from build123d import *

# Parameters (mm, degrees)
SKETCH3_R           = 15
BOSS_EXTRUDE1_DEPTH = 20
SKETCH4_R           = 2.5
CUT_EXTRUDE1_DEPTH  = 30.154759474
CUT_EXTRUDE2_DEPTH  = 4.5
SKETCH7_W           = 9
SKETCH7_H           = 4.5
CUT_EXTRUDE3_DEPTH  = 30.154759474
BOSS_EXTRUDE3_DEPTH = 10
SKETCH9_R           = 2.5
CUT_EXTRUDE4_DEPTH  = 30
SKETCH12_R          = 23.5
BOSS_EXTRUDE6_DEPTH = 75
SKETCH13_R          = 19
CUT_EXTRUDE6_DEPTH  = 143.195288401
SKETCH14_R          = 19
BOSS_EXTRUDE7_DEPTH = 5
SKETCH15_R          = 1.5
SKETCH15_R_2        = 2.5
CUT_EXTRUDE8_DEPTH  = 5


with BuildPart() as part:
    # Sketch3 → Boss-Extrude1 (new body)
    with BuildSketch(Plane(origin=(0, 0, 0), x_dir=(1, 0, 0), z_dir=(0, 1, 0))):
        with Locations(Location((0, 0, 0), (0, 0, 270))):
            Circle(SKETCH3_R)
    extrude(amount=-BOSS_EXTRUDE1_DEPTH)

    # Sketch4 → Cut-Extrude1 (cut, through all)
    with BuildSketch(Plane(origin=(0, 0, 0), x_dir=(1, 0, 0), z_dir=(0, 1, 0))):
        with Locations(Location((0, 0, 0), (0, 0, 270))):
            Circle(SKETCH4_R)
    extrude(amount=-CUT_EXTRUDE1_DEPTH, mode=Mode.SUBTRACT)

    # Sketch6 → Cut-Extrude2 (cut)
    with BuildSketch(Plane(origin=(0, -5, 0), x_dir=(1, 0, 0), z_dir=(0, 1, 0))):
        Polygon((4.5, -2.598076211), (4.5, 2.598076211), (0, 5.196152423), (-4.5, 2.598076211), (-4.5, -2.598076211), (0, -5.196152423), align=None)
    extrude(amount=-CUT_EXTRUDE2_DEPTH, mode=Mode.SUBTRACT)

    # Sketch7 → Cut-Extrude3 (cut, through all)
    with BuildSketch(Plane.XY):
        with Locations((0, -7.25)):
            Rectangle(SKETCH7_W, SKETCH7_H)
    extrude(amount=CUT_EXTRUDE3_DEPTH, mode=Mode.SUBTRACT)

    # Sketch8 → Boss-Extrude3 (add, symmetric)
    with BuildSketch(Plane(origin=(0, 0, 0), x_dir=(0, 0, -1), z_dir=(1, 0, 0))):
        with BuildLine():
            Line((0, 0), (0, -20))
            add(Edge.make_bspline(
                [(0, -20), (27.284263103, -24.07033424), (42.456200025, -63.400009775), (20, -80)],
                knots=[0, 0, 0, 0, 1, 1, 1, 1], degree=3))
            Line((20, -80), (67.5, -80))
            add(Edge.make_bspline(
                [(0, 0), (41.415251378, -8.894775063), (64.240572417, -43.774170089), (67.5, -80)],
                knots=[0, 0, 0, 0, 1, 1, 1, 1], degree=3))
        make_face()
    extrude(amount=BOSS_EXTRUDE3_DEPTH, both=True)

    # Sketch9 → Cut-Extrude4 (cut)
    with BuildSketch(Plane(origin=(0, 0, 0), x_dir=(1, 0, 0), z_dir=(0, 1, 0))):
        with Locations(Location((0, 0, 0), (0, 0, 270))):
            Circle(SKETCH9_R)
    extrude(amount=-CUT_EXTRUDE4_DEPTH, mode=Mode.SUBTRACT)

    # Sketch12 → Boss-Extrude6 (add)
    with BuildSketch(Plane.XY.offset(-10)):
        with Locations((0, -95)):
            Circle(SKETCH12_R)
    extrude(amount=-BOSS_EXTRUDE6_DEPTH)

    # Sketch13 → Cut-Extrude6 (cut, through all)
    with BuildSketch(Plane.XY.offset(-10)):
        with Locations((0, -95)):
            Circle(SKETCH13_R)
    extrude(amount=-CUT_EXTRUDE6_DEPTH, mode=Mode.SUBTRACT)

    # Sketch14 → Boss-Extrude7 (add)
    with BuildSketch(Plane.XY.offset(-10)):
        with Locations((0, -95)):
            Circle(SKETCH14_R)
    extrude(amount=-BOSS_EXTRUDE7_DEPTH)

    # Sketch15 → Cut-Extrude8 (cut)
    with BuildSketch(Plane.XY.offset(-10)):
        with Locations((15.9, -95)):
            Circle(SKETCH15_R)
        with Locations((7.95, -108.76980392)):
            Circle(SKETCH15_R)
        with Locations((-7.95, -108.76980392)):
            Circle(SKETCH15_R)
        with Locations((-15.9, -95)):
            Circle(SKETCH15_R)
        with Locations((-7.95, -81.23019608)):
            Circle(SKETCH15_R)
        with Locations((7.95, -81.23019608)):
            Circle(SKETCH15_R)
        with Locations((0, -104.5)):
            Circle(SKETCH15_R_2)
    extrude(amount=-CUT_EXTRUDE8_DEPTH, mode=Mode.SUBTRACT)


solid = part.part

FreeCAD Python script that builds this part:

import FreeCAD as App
import Part
import Sketcher
from FreeCAD import Vector
Q = App.Units.Quantity

doc = App.newDocument("Part")
body = doc.addObject("PartDesign::Body", "Body")

sketch1 = body.newObject("Sketcher::SketchObject", "Sketch")
sketch1.AttachmentSupport = (doc.getObject("XZ_Plane"), [""])
sketch1.MapMode = "FlatFace"
sketch1.addGeometry(Part.Circle(Vector(0, 0, 0), Vector(0, 0, 1), 15), False)
sketch1.addConstraint([
    Sketcher.Constraint("Coincident", 0, 3, -1, 1),
    Sketcher.Constraint("Diameter", 0, Q("30 mm")),
])
pad1 = body.newObject("PartDesign::Pad", "Pad")
pad1.Profile = sketch1
pad1.Length = 20

sketch2 = body.newObject("Sketcher::SketchObject", "Sketch001")
sketch2.AttachmentSupport = (doc.getObject("XZ_Plane"), [""])
sketch2.MapMode = "FlatFace"
sketch2.addGeometry(Part.Circle(Vector(0, 0, 0), Vector(0, 0, 1), 2.5), False)
sketch2.addConstraint([
    Sketcher.Constraint("Coincident", 0, 3, -1, 1),
    Sketcher.Constraint("Diameter", 0, Q("5 mm")),
])
pocket1 = body.newObject("PartDesign::Pocket", "Pocket")
pocket1.Profile = sketch2
pocket1.Type = "ThroughAll"
pocket1.Reversed = True

sketch3 = body.newObject("Sketcher::SketchObject", "Sketch002")
sketch3.AttachmentSupport = (doc.getObject("XZ_Plane"), [""])
sketch3.MapMode = "FlatFace"
sketch3.AttachmentOffset = App.Placement(Vector(0, 0, 5), App.Rotation())
sketch3.addGeometry([
    Part.LineSegment(Vector(4, 3, 0), Vector(4, -3, 0)),
    Part.LineSegment(Vector(4, -3, 0), Vector(0, -5, 0)),
    Part.LineSegment(Vector(0, -5, 0), Vector(-4, -3, 0)),
    Part.LineSegment(Vector(-4, -3, 0), Vector(-4, 3, 0)),
    Part.LineSegment(Vector(-4, 3, 0), Vector(0, 5, 0)),
    Part.LineSegment(Vector(0, 5, 0), Vector(4, 3, 0)),
], False)
sketch3.addConstraint([
    Sketcher.Constraint("Coincident", 0, 2, 1, 1),
    Sketcher.Constraint("Coincident", 1, 2, 2, 1),
    Sketcher.Constraint("Coincident", 2, 2, 3, 1),
    Sketcher.Constraint("Coincident", 3, 2, 4, 1),
    Sketcher.Constraint("Coincident", 4, 2, 5, 1),
    Sketcher.Constraint("Coincident", 5, 2, 0, 1),
    Sketcher.Constraint("Vertical", 0),
    Sketcher.Constraint("Vertical", 3),
    Sketcher.Constraint("Symmetric", 0, 2, 3, 2, -1, 1),
    Sketcher.Constraint("Symmetric", 1, 2, 4, 2, -1, 1),
    Sketcher.Constraint("PointOnObject", 1, 2, -2),
    Sketcher.Constraint("Parallel", 2, 5),
    Sketcher.Constraint("Horizontal", 0, 2, 2, 2),
    Sketcher.Constraint("Angle", 1, Q("-150 deg")),
    Sketcher.Constraint("DistanceX", 2, 2, 0, 2, Q("9 mm")),
    Sketcher.Constraint("DistanceY", 0, 2, 0, 1, Q("5.196152 mm")),
])
pocket2 = body.newObject("PartDesign::Pocket", "Pocket001")
pocket2.Profile = sketch3
pocket2.Length = 4.5
pocket2.Reversed = True

sketch4 = body.newObject("Sketcher::SketchObject", "Sketch003")
sketch4.AttachmentSupport = (doc.getObject("XY_Plane"), [""])
sketch4.MapMode = "FlatFace"
sketch4.addGeometry([
    Part.LineSegment(Vector(-4.5, -5, 0), Vector(-4.5, -9.5, 0)),
    Part.LineSegment(Vector(-4.5, -9.5, 0), Vector(4.5, -9.5, 0)),
    Part.LineSegment(Vector(4.5, -9.5, 0), Vector(4.5, -5, 0)),
    Part.LineSegment(Vector(4.5, -5, 0), Vector(-4.5, -5, 0)),
], False)
sketch4.addConstraint([
    Sketcher.Constraint("Coincident", 0, 2, 1, 1),
    Sketcher.Constraint("Coincident", 1, 2, 2, 1),
    Sketcher.Constraint("Coincident", 2, 2, 3, 1),
    Sketcher.Constraint("Coincident", 3, 2, 0, 1),
    Sketcher.Constraint("Vertical", 0),
    Sketcher.Constraint("Horizontal", 1),
    Sketcher.Constraint("Vertical", 2),
    Sketcher.Constraint("Horizontal", 3),
    Sketcher.Constraint("DistanceX", 1, 1, 1, 2, Q("9 mm")),
    Sketcher.Constraint("DistanceY", 0, 2, 0, 1, Q("4.5 mm")),
    Sketcher.Constraint("DistanceY", 2, 2, -1, 1, Q("5 mm")),
    Sketcher.Constraint("DistanceX", 0, 2, -1, 1, Q("4.5 mm")),
])
pocket3 = body.newObject("PartDesign::Pocket", "Pocket002")
pocket3.Profile = sketch4
pocket3.Type = "ThroughAll"
pocket3.Reversed = True

sketch5 = body.newObject("Sketcher::SketchObject", "Sketch004")
sketch5.AttachmentSupport = (doc.getObject("YZ_Plane"), [""])
sketch5.MapMode = "FlatFace"
sketch5.addGeometry([
    Part.LineSegment(Vector(0, 0, 0), Vector(-20, 0, 0)),
    Part.BSplineCurve([Vector(-20, 0, 0), Vector(-24.070334, -27.284263, 0), Vector(-63.40001, -42.4562, 0), Vector(-80, -20, 0)], [4, 4], [0, 1], False, 3, [1, 1, 1, 1], False),
    Part.LineSegment(Vector(-80, -20, 0), Vector(-80, -67.5, 0)),
    Part.BSplineCurve([Vector(0, 0, 0), Vector(-8.894775, -41.415251, 0), Vector(-43.77417, -64.240572, 0), Vector(-80, -67.5, 0)], [4, 4], [0, 1], False, 3, [1, 1, 1, 1], False),
], False)
sketch5.addConstraint([
    Sketcher.Constraint("Block", 1),
    Sketcher.Constraint("Block", 3),
    Sketcher.Constraint("Coincident", 0, 2, 1, 1),
    Sketcher.Constraint("Coincident", 1, 2, 2, 1),
    Sketcher.Constraint("Coincident", 2, 2, 3, 2),
    Sketcher.Constraint("Coincident", 3, 1, 0, 1),
])
pad2 = body.newObject("PartDesign::Pad", "Pad001")
pad2.Profile = sketch5
pad2.Length = 20
pad2.Midplane = True

sketch6 = body.newObject("Sketcher::SketchObject", "Sketch005")
sketch6.AttachmentSupport = (doc.getObject("XZ_Plane"), [""])
sketch6.MapMode = "FlatFace"
sketch6.addGeometry(Part.Circle(Vector(0, 0, 0), Vector(0, 0, 1), 2.5), False)
sketch6.addConstraint([
    Sketcher.Constraint("Coincident", 0, 3, -1, 1),
    Sketcher.Constraint("Diameter", 0, Q("5 mm")),
])
pocket4 = body.newObject("PartDesign::Pocket", "Pocket003")
pocket4.Profile = sketch6
pocket4.Length = 30
pocket4.Reversed = True

sketch7 = body.newObject("Sketcher::SketchObject", "Sketch006")
sketch7.AttachmentSupport = (doc.getObject("XY_Plane"), [""])
sketch7.MapMode = "FlatFace"
sketch7.AttachmentOffset = App.Placement(Vector(0, 0, -10), App.Rotation())
sketch7.addGeometry(Part.Circle(Vector(0, -95, 0), Vector(0, 0, 1), 24), False)
sketch7.addConstraint([
    Sketcher.Constraint("PointOnObject", 0, 3, -2),
    Sketcher.Constraint("Diameter", 0, Q("47 mm")),
    Sketcher.Constraint("DistanceY", 0, 3, -1, 1, Q("95 mm")),
])
pad3 = body.newObject("PartDesign::Pad", "Pad002")
pad3.Profile = sketch7
pad3.Length = 75
pad3.Reversed = True

sketch8 = body.newObject("Sketcher::SketchObject", "Sketch007")
sketch8.AttachmentSupport = (doc.getObject("XY_Plane"), [""])
sketch8.MapMode = "FlatFace"
sketch8.AttachmentOffset = App.Placement(Vector(0, 0, -10), App.Rotation())
sketch8.addGeometry(Part.Circle(Vector(0, -95, 0), Vector(0, 0, 1), 19), False)
sketch8.addConstraint([
    Sketcher.Constraint("PointOnObject", 0, 3, -2),
    Sketcher.Constraint("Diameter", 0, Q("38 mm")),
    Sketcher.Constraint("DistanceY", 0, 3, -1, 1, Q("95 mm")),
])
pocket5 = body.newObject("PartDesign::Pocket", "Pocket004")
pocket5.Profile = sketch8
pocket5.Type = "ThroughAll"

sketch9 = body.newObject("Sketcher::SketchObject", "Sketch008")
sketch9.AttachmentSupport = (doc.getObject("XY_Plane"), [""])
sketch9.MapMode = "FlatFace"
sketch9.AttachmentOffset = App.Placement(Vector(0, 0, -10), App.Rotation())
sketch9.addGeometry(Part.Circle(Vector(0, -95, 0), Vector(0, 0, 1), 19), False)
sketch9.addConstraint([
    Sketcher.Constraint("PointOnObject", 0, 3, -2),
    Sketcher.Constraint("Diameter", 0, Q("38 mm")),
    Sketcher.Constraint("DistanceY", 0, 3, -1, 1, Q("95 mm")),
])
pad4 = body.newObject("PartDesign::Pad", "Pad003")
pad4.Profile = sketch9
pad4.Length = 5
pad4.Reversed = True

sketch10 = body.newObject("Sketcher::SketchObject", "Sketch009")
sketch10.AttachmentSupport = (doc.getObject("XY_Plane"), [""])
sketch10.MapMode = "FlatFace"
sketch10.AttachmentOffset = App.Placement(Vector(0, 0, -10), App.Rotation())
sketch10.addGeometry([
    Part.Circle(Vector(15.9, -95, 0), Vector(0, 0, 1), 1.5),
    Part.Circle(Vector(8, -108.8, 0), Vector(0, 0, 1), 1.5),
    Part.Circle(Vector(-8, -108.8, 0), Vector(0, 0, 1), 1.5),
    Part.Circle(Vector(-15.9, -95, 0), Vector(0, 0, 1), 1.5),
    Part.Circle(Vector(-8, -81.2, 0), Vector(0, 0, 1), 1.5),
    Part.Circle(Vector(8, -81.2, 0), Vector(0, 0, 1), 1.5),
    Part.Circle(Vector(0, -104.5, 0), Vector(0, 0, 1), 2.5),
], False)
sketch10.addConstraint([
    Sketcher.Constraint("Equal", 0, 1),
    Sketcher.Constraint("Equal", 1, 2),
    Sketcher.Constraint("Equal", 2, 3),
    Sketcher.Constraint("Equal", 3, 4),
    Sketcher.Constraint("Equal", 4, 5),
    Sketcher.Constraint("Symmetric", 1, 3, 2, 3, -2),
    Sketcher.Constraint("Symmetric", 0, 3, 3, 3, -2),
    Sketcher.Constraint("Symmetric", 4, 3, 5, 3, -2),
    Sketcher.Constraint("PointOnObject", 6, 3, -2),
    Sketcher.Constraint("Vertical", 2, 3, 4, 3),
    Sketcher.Constraint("Diameter", 0, Q("3 mm")),
    Sketcher.Constraint("Diameter", 6, Q("5 mm")),
    Sketcher.Constraint("DistanceY", 0, 3, -1, 1, Q("95 mm")),
    Sketcher.Constraint("DistanceX", -1, 1, 0, 3, Q("15.9 mm")),
    Sketcher.Constraint("DistanceY", 6, 3, -1, 1, Q("104.5 mm")),
    Sketcher.Constraint("DistanceX", 2, 3, 1, 3, Q("15.9 mm")),
    Sketcher.Constraint("DistanceY", 1, 3, -1, 1, Q("108.769804 mm")),
    Sketcher.Constraint("DistanceY", 4, 3, -1, 1, Q("81.230196 mm")),
])
pocket6 = body.newObject("PartDesign::Pocket", "Pocket005")
pocket6.Profile = sketch10
pocket6.Length = 5

doc.recompute()
